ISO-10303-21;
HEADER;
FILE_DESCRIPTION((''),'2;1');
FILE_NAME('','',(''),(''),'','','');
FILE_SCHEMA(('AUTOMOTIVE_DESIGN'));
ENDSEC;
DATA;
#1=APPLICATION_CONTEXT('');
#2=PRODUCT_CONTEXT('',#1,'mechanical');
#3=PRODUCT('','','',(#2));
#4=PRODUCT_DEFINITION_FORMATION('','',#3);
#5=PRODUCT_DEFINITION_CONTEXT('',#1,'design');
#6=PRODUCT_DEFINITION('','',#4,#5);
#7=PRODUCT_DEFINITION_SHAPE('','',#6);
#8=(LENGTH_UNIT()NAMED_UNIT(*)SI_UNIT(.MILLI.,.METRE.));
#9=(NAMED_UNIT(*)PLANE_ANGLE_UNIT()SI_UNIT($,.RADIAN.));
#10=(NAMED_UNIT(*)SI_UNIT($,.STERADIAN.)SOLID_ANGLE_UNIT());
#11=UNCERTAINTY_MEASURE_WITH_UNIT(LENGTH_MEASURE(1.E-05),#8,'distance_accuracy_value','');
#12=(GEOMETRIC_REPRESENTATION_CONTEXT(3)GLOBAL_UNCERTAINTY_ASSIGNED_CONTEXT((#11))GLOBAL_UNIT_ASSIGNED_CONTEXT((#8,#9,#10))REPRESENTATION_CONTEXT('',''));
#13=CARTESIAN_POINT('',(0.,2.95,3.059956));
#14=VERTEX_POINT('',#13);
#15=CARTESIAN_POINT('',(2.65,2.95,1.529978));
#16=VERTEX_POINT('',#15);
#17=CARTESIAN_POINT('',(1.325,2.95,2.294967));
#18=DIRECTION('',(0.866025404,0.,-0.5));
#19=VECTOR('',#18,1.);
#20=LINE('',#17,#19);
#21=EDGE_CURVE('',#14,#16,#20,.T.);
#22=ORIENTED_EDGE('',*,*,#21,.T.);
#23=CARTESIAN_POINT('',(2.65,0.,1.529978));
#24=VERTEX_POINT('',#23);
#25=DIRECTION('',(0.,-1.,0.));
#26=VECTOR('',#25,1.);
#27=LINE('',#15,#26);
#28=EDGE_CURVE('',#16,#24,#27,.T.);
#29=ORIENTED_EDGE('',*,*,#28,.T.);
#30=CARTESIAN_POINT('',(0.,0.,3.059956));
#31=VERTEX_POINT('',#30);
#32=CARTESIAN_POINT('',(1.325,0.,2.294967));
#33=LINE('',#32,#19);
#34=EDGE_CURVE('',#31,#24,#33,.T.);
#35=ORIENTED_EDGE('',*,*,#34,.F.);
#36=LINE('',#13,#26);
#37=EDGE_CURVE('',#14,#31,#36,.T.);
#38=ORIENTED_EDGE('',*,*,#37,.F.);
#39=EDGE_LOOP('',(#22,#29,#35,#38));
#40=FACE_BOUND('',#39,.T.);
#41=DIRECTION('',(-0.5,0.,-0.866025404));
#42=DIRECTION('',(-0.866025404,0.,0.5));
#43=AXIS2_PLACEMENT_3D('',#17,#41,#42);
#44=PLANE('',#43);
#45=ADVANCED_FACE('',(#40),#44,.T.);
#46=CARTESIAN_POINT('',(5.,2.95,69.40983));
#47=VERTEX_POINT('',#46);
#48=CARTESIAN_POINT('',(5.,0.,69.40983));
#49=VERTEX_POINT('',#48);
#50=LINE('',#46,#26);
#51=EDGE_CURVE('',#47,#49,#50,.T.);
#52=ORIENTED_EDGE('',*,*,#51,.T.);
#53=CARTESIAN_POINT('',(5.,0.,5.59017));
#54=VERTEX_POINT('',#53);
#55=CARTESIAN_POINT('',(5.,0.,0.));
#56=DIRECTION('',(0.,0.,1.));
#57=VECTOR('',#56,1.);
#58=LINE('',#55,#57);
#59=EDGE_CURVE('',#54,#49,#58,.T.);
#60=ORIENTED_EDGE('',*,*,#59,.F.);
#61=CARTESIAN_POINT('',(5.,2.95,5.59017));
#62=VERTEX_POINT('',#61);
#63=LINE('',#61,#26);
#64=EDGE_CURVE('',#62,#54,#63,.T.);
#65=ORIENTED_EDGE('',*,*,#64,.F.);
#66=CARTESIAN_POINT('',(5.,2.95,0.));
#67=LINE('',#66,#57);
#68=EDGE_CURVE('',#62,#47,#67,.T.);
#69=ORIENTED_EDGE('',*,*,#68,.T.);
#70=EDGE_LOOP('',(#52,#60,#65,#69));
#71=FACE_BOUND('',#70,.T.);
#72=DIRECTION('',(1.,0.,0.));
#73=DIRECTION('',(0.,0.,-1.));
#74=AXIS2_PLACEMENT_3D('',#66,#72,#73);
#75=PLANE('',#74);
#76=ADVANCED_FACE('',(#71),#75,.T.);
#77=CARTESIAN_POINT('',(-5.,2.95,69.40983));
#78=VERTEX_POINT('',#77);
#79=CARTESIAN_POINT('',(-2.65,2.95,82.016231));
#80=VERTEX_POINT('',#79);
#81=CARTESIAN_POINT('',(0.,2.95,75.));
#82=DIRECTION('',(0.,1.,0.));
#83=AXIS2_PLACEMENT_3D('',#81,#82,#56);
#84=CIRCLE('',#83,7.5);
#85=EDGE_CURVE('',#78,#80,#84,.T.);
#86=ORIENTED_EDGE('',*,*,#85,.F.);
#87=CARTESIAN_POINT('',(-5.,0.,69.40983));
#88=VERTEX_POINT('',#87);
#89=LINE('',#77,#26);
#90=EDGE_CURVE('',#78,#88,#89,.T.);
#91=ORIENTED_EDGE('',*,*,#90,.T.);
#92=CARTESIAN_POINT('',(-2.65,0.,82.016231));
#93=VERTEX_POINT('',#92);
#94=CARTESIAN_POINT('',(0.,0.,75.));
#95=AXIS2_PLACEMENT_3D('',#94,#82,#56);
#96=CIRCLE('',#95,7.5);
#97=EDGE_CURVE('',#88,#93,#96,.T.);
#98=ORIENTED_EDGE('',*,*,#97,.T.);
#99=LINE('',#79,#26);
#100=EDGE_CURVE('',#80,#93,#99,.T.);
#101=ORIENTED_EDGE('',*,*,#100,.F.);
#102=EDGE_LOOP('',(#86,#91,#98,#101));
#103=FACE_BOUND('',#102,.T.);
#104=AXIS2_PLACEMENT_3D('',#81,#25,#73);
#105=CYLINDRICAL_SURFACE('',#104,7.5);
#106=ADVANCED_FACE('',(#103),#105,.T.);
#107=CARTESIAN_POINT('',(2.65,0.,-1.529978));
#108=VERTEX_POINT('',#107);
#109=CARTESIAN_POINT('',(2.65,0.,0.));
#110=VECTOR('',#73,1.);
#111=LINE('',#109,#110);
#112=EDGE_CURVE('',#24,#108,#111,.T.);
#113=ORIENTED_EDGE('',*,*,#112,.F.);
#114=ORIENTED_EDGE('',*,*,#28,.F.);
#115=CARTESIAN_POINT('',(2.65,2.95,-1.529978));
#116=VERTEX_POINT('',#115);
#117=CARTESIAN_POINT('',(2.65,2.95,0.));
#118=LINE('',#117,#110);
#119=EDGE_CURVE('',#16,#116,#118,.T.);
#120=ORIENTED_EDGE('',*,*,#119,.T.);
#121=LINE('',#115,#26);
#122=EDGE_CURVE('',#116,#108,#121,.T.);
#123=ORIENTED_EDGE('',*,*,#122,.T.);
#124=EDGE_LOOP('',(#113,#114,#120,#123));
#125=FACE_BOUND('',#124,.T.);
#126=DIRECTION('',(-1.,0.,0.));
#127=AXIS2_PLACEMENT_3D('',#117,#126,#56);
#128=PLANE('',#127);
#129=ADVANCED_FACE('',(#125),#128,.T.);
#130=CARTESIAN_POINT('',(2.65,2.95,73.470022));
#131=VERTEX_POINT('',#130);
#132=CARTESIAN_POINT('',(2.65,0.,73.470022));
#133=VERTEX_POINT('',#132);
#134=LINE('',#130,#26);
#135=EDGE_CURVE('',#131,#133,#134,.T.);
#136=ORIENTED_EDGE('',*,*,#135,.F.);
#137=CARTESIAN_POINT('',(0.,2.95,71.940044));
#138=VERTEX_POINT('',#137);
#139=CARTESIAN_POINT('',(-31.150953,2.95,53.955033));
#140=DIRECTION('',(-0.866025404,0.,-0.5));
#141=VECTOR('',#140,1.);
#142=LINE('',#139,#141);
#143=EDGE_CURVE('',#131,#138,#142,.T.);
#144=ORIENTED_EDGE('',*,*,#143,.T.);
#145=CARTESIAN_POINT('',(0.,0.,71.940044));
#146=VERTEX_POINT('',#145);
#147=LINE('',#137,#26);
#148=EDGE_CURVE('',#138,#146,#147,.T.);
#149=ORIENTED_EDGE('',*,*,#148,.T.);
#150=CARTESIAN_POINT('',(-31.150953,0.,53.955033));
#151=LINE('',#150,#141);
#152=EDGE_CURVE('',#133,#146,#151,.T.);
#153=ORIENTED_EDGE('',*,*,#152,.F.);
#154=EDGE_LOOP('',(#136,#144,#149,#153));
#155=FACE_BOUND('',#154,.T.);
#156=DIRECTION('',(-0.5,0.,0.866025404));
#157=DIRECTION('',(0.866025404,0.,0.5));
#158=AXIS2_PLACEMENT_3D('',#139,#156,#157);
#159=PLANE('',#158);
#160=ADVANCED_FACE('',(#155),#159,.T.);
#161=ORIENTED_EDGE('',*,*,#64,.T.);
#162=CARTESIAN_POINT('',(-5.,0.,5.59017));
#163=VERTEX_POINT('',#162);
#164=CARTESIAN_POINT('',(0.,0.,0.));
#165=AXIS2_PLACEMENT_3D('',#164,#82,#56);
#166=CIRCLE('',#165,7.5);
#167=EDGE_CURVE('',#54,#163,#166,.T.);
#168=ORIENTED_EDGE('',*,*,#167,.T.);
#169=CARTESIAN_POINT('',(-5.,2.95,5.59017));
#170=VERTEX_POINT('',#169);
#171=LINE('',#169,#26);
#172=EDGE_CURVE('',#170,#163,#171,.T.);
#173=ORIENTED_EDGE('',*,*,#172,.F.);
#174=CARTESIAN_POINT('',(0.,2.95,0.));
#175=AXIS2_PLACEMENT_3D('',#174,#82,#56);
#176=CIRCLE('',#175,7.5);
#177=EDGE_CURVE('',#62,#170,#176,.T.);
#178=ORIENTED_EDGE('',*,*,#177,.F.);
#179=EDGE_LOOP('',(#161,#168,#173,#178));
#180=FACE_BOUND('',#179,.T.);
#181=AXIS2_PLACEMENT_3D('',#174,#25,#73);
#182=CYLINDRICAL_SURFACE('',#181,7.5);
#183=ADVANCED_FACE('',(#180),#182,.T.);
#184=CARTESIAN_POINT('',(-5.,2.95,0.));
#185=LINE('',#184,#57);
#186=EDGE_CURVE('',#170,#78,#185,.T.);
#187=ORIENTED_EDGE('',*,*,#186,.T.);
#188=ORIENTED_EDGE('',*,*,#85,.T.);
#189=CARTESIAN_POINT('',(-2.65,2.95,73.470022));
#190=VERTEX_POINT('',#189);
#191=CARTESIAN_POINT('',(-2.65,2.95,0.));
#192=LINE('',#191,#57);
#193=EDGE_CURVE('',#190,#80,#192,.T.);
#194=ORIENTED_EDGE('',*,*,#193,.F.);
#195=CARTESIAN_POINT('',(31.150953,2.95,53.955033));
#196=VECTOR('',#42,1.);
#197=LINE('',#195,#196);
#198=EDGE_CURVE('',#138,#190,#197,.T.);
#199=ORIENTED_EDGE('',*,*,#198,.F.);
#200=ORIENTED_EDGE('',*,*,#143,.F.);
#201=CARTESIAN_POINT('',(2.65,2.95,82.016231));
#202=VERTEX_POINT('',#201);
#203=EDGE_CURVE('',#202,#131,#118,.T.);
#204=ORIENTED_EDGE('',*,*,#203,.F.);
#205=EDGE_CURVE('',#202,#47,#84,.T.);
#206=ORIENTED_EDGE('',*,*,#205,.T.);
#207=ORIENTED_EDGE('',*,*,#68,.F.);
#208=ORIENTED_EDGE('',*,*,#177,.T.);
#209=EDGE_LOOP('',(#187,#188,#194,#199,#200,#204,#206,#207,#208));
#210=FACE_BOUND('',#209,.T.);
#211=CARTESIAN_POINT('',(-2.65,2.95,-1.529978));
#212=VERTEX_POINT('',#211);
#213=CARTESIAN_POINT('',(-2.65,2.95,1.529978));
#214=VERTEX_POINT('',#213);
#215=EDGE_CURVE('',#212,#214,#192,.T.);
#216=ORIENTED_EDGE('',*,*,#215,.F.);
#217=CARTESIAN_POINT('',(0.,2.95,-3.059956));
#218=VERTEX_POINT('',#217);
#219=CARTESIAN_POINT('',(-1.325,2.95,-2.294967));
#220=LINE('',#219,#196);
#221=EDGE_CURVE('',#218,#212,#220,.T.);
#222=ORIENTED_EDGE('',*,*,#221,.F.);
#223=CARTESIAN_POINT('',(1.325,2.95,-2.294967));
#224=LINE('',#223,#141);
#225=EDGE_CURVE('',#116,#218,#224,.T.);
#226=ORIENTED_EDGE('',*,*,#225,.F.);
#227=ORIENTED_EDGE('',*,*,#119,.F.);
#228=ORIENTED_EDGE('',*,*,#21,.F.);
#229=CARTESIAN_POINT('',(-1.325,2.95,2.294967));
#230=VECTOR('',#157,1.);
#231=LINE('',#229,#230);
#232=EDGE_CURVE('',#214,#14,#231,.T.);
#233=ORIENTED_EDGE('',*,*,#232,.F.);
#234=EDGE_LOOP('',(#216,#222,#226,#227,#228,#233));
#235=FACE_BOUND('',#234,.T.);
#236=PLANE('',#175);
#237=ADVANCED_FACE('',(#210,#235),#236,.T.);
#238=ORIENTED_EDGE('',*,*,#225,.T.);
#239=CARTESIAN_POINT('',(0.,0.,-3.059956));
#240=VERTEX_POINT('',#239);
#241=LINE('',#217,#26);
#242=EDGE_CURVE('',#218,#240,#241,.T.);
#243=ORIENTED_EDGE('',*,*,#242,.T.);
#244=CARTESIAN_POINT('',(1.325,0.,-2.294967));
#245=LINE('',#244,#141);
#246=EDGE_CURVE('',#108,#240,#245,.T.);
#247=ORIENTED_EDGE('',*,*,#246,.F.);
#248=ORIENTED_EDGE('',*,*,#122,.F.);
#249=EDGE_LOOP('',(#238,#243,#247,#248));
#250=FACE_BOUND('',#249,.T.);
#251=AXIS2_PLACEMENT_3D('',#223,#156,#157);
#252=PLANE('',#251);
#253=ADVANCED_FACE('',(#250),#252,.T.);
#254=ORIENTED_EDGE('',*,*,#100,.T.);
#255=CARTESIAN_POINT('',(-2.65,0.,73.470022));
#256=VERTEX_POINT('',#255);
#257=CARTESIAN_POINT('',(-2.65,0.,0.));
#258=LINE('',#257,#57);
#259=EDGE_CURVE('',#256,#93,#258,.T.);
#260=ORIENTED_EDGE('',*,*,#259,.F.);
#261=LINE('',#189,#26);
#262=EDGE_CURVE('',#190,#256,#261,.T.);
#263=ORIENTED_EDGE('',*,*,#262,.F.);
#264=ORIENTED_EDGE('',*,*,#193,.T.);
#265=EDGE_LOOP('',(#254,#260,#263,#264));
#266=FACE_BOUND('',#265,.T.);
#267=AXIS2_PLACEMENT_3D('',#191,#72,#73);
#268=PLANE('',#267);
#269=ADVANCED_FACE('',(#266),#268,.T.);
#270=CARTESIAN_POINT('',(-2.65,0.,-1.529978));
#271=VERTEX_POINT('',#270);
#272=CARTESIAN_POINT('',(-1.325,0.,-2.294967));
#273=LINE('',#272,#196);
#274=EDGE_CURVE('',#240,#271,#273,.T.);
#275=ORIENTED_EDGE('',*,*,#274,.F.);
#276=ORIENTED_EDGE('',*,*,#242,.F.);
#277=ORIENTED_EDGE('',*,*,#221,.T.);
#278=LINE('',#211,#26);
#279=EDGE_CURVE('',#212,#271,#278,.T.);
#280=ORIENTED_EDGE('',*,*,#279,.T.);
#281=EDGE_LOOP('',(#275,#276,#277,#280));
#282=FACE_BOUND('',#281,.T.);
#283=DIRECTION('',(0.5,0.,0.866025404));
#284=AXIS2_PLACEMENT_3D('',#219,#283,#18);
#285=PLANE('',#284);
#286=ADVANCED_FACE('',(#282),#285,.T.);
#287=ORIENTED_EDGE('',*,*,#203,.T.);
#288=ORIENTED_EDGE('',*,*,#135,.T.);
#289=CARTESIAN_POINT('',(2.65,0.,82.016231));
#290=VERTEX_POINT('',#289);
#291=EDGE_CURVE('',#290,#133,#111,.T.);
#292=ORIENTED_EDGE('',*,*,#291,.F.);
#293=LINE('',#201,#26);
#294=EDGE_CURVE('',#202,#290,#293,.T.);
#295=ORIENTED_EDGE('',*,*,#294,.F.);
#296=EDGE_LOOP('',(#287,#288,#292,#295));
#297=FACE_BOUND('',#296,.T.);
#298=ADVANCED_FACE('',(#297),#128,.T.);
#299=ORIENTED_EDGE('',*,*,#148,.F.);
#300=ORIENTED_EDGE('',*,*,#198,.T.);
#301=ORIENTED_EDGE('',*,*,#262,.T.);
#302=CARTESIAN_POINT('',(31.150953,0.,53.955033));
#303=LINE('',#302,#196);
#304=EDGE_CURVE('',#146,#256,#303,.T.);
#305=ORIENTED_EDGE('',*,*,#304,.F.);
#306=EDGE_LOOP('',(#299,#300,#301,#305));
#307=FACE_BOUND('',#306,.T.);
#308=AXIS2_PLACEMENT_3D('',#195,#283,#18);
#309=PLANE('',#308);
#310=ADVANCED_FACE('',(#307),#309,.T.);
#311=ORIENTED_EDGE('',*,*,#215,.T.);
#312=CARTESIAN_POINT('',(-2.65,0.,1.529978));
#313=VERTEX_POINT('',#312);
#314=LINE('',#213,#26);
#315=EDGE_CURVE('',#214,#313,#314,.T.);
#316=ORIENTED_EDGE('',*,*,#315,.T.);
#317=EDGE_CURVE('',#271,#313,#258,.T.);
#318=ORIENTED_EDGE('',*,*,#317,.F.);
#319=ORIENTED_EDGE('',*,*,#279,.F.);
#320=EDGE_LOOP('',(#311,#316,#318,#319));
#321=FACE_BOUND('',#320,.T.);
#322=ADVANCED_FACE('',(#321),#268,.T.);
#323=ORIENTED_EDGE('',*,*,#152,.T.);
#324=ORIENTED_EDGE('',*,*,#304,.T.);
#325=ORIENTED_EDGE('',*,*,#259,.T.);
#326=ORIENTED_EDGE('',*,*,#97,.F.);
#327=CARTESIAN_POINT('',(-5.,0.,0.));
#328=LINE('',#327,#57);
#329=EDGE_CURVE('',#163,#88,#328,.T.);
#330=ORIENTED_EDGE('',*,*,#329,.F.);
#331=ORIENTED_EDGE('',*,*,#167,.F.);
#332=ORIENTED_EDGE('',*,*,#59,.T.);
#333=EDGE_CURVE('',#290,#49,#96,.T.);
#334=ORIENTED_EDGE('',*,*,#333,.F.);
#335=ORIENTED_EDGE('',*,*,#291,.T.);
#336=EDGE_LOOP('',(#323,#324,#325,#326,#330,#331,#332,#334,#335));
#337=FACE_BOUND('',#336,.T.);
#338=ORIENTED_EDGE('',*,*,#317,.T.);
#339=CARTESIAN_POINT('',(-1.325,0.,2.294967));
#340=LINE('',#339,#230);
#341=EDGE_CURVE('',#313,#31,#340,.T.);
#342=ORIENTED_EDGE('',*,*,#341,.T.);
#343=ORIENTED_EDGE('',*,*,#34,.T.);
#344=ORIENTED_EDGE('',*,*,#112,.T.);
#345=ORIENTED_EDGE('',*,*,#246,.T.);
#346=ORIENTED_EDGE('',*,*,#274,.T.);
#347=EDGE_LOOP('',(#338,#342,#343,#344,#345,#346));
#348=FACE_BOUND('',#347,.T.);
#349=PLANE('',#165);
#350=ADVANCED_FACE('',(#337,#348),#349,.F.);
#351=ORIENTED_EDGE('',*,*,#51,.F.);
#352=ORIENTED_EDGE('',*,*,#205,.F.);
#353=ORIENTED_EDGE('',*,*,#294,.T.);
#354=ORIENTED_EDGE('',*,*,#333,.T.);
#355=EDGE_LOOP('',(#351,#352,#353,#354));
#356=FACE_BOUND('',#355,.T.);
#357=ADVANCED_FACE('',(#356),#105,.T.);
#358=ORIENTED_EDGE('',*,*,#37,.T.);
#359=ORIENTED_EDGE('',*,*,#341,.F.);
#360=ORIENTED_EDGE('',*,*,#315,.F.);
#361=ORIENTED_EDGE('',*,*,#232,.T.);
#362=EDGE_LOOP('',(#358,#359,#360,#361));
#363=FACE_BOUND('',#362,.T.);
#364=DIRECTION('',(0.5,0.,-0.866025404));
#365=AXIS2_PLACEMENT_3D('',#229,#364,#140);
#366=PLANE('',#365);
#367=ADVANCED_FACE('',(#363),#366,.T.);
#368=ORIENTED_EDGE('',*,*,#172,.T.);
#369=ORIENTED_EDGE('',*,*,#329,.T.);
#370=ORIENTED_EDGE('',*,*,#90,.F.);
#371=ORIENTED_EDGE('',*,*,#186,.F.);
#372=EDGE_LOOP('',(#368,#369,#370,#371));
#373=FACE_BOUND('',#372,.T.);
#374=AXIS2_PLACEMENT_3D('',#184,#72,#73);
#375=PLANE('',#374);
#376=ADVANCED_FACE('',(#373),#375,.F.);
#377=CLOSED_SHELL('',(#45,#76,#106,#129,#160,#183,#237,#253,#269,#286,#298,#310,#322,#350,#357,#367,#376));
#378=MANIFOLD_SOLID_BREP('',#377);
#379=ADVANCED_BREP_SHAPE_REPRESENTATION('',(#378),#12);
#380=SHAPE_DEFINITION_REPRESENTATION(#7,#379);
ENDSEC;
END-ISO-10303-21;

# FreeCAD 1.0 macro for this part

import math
import FreeCAD as App
import Part
import Sketcher

V = App.Vector
Q = App.Units.Quantity

doc = App.newDocument("Part")
params = doc.addObject("Spreadsheet::Sheet", "Params")
for row, (alias, value) in enumerate([
    ("sketch1_radius", "7.5 mm"),
    ("pad1_length", "2.95 mm"),
], start=1):
    params.set(f"A{row}", alias)
    params.set(f"B{row}", "=" + value)
    params.setAlias(f"B{row}", alias)

body = doc.addObject("PartDesign::Body", "Body")

sketch1 = doc.addObject("Sketcher::SketchObject", "Sketch")
body.addObject(sketch1)
sketch1.AttachmentSupport = (doc.XZ_Plane, [""])
sketch1.MapMode = "FlatFace"
sketch1.addGeometry([
    Part.ArcOfCircle(Part.Circle(V(0, 75, 0), V(0, 0, 1), 7.5), math.radians(110.691333), math.radians(228.189685)),
    Part.LineSegment(V(-2.65, 82.016231, 0), V(-2.65, 73.470022, 0)),
    Part.LineSegment(V(-2.65, 73.470022, 0), V(0, 71.940044, 0)),
    Part.LineSegment(V(0, 71.940044, 0), V(2.65, 73.470022, 0)),
    Part.LineSegment(V(2.65, 73.470022, 0), V(2.65, 82.016231, 0)),
    Part.ArcOfCircle(Part.Circle(V(0, 75, 0), V(0, 0, 1), 7.5), math.radians(0), math.radians(69.308667)),
    Part.ArcOfCircle(Part.Circle(V(0, 75, 0), V(0, 0, 1), 7.5), math.radians(-48.189685), math.radians(0)),
    Part.LineSegment(V(5, 69.40983, 0), V(5, 5.59017, 0)),
    Part.ArcOfCircle(Part.Circle(V(0, 0, 0), V(0, 0, 1), 7.5), math.radians(0), math.radians(48.189685)),
    Part.ArcOfCircle(Part.Circle(V(0, 0, 0), V(0, 0, 1), 7.5), math.radians(131.810315), math.radians(360)),
    Part.LineSegment(V(-5, 5.59017, 0), V(-5, 69.40983, 0)),
    Part.LineSegment(V(2.65, 1.529978, 0), V(0, 3.059956, 0)),
    Part.LineSegment(V(0, 3.059956, 0), V(-2.65, 1.529978, 0)),
    Part.LineSegment(V(-2.65, 1.529978, 0), V(-2.65, -1.529978, 0)),
    Part.LineSegment(V(-2.65, -1.529978, 0), V(0, -3.059956, 0)),
    Part.LineSegment(V(0, -3.059956, 0), V(2.65, -1.529978, 0)),
    Part.LineSegment(V(2.65, -1.529978, 0), V(2.65, 1.529978, 0)),
], False)
sketch1.addConstraint([
    Sketcher.Constraint("Coincident", 0, 1, 1, 1),
    Sketcher.Constraint("Coincident", 1, 2, 2, 1),
    Sketcher.Constraint("Coincident", 2, 2, 3, 1),
    Sketcher.Constraint("Coincident", 3, 2, 4, 1),
    Sketcher.Constraint("Coincident", 4, 2, 5, 2),
    Sketcher.Constraint("Tangent", 5, 1, 6, 2),
    Sketcher.Constraint("Coincident", 6, 1, 7, 1),
    Sketcher.Constraint("Coincident", 7, 2, 8, 2),
    Sketcher.Constraint("Tangent", 8, 1, 9, 2),
    Sketcher.Constraint("Coincident", 9, 1, 10, 1),
    Sketcher.Constraint("Coincident", 10, 2, 0, 2),
    Sketcher.Constraint("Coincident", 11, 2, 12, 1),
    Sketcher.Constraint("Coincident", 12, 2, 13, 1),
    Sketcher.Constraint("Coincident", 13, 2, 14, 1),
    Sketcher.Constraint("Coincident", 14, 2, 15, 1),
    Sketcher.Constraint("Coincident", 15, 2, 16, 1),
    Sketcher.Constraint("Coincident", 16, 2, 11, 1),
    Sketcher.Constraint("Vertical", 1),
    Sketcher.Constraint("Vertical", 4),
    Sketcher.Constraint("Vertical", 7),
    Sketcher.Constraint("Vertical", 10),
    Sketcher.Constraint("Vertical", 13),
    Sketcher.Constraint("Vertical", 16),
    Sketcher.Constraint("Coincident", 8, 3, -1, 1),
    Sketcher.Constraint("Coincident", 5, 3, 0, 3),
    Sketcher.Constraint("Equal", 0, 5),
    Sketcher.Constraint("Equal", 5, 6),
    Sketcher.Constraint("Equal", 6, 8),
    Sketcher.Constraint("Equal", 8, 9),
    Sketcher.Constraint("Symmetric", 11, 2, 14, 2, -1, 1),
    Sketcher.Constraint("Symmetric", 12, 2, 15, 2, -1, 1),
    Sketcher.Constraint("Symmetric", 1, 2, 3, 2, -2),
    Sketcher.Constraint("Symmetric", 6, 1, 10, 2, -2),
    Sketcher.Constraint("PointOnObject", 2, 2, -2),
    Sketcher.Constraint("PointOnObject", 8, 1, -1),
    Sketcher.Constraint("PointOnObject", 11, 2, -2),
    Sketcher.Constraint("Parallel", 2, 11),
    Sketcher.Constraint("Parallel", 3, 12),
    Sketcher.Constraint("Parallel", 11, 14),
    Sketcher.Constraint("Horizontal", 6, 3, 5, 1),
    Sketcher.Constraint("Vertical", 1, 2, 12, 2),
    Sketcher.Constraint("Radius", 0, Q("7.5 mm")),
    Sketcher.Constraint("Angle", 2, Q("-30 deg")),
    Sketcher.Constraint("DistanceY", -1, 1, 0, 3, Q("75 mm")),
    Sketcher.Constraint("DistanceX", -1, 1, 6, 1, Q("5 mm")),
    Sketcher.Constraint("DistanceX", 1, 2, 3, 2, Q("5.3 mm")),
    Sketcher.Constraint("DistanceY", 1, 2, 1, 1, Q("8.546209 mm")),
    Sketcher.Constraint("DistanceY", 13, 2, 13, 1, Q("3.059956 mm")),
])
sketch1.setExpression("Constraints[41]", "Params.sketch1_radius")
pad1 = doc.addObject("PartDesign::Pad", "Pad")
body.addObject(pad1)
pad1.Profile = sketch1
pad1.setExpression("Length", "Params.pad1_length")
pad1.Reversed = True

doc.recompute()
